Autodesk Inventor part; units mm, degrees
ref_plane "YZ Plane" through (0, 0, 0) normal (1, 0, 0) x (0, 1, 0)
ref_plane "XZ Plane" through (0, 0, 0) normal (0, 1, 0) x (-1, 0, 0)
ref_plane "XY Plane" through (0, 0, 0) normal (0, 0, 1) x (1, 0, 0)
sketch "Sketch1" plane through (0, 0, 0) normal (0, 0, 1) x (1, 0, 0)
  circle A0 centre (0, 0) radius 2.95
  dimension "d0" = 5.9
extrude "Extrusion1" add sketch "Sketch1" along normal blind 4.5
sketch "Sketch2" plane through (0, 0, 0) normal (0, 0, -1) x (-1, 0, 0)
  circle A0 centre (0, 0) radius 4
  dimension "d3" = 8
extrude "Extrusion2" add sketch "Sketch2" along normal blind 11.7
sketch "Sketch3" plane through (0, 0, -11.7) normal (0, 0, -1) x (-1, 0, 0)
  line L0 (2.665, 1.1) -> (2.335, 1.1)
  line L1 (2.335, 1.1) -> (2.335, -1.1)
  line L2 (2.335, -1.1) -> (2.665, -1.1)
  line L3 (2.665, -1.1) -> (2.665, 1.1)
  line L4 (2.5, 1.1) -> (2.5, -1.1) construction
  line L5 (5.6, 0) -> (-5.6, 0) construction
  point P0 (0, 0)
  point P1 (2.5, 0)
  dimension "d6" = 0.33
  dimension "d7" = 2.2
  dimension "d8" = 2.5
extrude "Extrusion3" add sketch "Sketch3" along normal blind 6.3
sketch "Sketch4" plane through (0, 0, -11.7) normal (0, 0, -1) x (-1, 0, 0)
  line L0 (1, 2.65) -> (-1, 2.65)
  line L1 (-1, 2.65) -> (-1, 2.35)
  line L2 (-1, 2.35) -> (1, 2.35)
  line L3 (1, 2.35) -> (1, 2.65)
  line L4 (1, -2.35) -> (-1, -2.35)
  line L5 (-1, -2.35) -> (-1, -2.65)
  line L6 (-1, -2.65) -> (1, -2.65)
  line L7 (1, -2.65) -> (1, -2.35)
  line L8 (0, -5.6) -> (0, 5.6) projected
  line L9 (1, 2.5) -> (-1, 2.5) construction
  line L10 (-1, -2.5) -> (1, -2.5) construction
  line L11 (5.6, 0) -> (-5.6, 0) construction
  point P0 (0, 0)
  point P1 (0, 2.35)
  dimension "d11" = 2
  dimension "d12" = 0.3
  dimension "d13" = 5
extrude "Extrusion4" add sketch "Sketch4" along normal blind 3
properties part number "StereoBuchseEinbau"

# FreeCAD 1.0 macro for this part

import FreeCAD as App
import Part
import Sketcher
Q = App.Units.Quantity

doc = App.newDocument("Part")
params = doc.addObject("Spreadsheet::Sheet", "Params")
for row, (alias, value) in enumerate([
    ("sketch1_diameter", "5.9 mm"),
    ("pad1_length", "4.5 mm"),
    ("sketch2_diameter", "8 mm"),
    ("pad2_length", "11.7 mm"),
    ("sketch3_height", "2.2 mm"),
    ("sketch3_width", "0.33 mm"),
    ("pad3_length", "6.3 mm"),
    ("sketch4_width", "2 mm"),
    ("sketch4_height", "0.3 mm"),
    ("pad4_length", "3 mm"),
], start=1):
    params.set(f"A{row}", alias)
    params.set(f"B{row}", "=" + value)
    params.setAlias(f"B{row}", alias)

body = doc.addObject("PartDesign::Body", "Body")

sketch1 = body.newObject("Sketcher::SketchObject", "Sketch")
sketch1.AttachmentSupport = (doc.getObject("XY_Plane"), [""])
sketch1.MapMode = "FlatFace"
sketch1.addGeometry(Part.Circle(App.Vector(0, 0, 0), App.Vector(0, 0, 1), 2.95), False)
sketch1.addConstraint([
    Sketcher.Constraint("Coincident", 0, 3, -1, 1),
    Sketcher.Constraint("Diameter", 0, Q("5.9 mm")),
])
sketch1.setExpression("Constraints[1]", "Params.sketch1_diameter")
pad1 = body.newObject("PartDesign::Pad", "Pad")
pad1.Profile = sketch1
pad1.setExpression("Length", "Params.pad1_length")

sketch2 = body.newObject("Sketcher::SketchObject", "Sketch001")
sketch2.AttachmentSupport = (doc.getObject("XY_Plane"), [""])
sketch2.MapMode = "FlatFace"
sketch2.addGeometry(Part.Circle(App.Vector(0, 0, 0), App.Vector(0, 0, 1), 4), False)
sketch2.addConstraint([
    Sketcher.Constraint("Coincident", 0, 3, -1, 1),
    Sketcher.Constraint("Diameter", 0, Q("8 mm")),
])
sketch2.setExpression("Constraints[1]", "Params.sketch2_diameter")
pad2 = body.newObject("PartDesign::Pad", "Pad001")
pad2.Profile = sketch2
pad2.setExpression("Length", "Params.pad2_length")
pad2.Reversed = True

sketch3 = body.newObject("Sketcher::SketchObject", "Sketch002")
sketch3.AttachmentSupport = (doc.getObject("XY_Plane"), [""])
sketch3.MapMode = "FlatFace"
sketch3.AttachmentOffset = App.Placement(App.Vector(0, 0, -11.7), App.Rotation())
sketch3.addGeometry([
    Part.LineSegment(App.Vector(-2.665, -1.1, 0), App.Vector(-2.665, 1.1, 0)),
    Part.LineSegment(App.Vector(-2.665, 1.1, 0), App.Vector(-2.335, 1.1, 0)),
    Part.LineSegment(App.Vector(-2.335, 1.1, 0), App.Vector(-2.335, -1.1, 0)),
    Part.LineSegment(App.Vector(-2.335, -1.1, 0), App.Vector(-2.665, -1.1, 0)),
], False)
sketch3.addConstraint([
    Sketcher.Constraint("Coincident", 0, 2, 1, 1),
    Sketcher.Constraint("Coincident", 1, 2, 2, 1),
    Sketcher.Constraint("Coincident", 2, 2, 3, 1),
    Sketcher.Constraint("Coincident", 3, 2, 0, 1),
    Sketcher.Constraint("Vertical", 0),
    Sketcher.Constraint("Horizontal", 1),
    Sketcher.Constraint("Vertical", 2),
    Sketcher.Constraint("Horizontal", 3),
    Sketcher.Constraint("DistanceY", 0, 1, 0, 2, Q("2.2 mm")),
    Sketcher.Constraint("DistanceX", 1, 1, 1, 2, Q("0.33 mm")),
    Sketcher.Constraint("DistanceY", -1, 1, 0, 2, Q("1.1 mm")),
    Sketcher.Constraint("DistanceX", 0, 2, -1, 1, Q("2.665 mm")),
])
sketch3.setExpression("Constraints[8]", "Params.sketch3_height")
sketch3.setExpression("Constraints[9]", "Params.sketch3_width")
pad3 = body.newObject("PartDesign::Pad", "Pad002")
pad3.Profile = sketch3
pad3.setExpression("Length", "Params.pad3_length")
pad3.Reversed = True

sketch4 = body.newObject("Sketcher::SketchObject", "Sketch003")
sketch4.AttachmentSupport = (doc.getObject("XY_Plane"), [""])
sketch4.MapMode = "FlatFace"
sketch4.AttachmentOffset = App.Placement(App.Vector(0, 0, -11.7), App.Rotation())
sketch4.addGeometry([
    Part.LineSegment(App.Vector(-1, 2.35, 0), App.Vector(-1, 2.65, 0)),
    Part.LineSegment(App.Vector(-1, 2.65, 0), App.Vector(1, 2.65, 0)),
    Part.LineSegment(App.Vector(1, 2.65, 0), App.Vector(1, 2.35, 0)),
    Part.LineSegment(App.Vector(1, 2.35, 0), App.Vector(-1, 2.35, 0)),
    Part.LineSegment(App.Vector(-1, -2.35, 0), App.Vector(1, -2.35, 0)),
    Part.LineSegment(App.Vector(1, -2.35, 0), App.Vector(1, -2.65, 0)),
    Part.LineSegment(App.Vector(1, -2.65, 0), App.Vector(-1, -2.65, 0)),
    Part.LineSegment(App.Vector(-1, -2.65, 0), App.Vector(-1, -2.35, 0)),
], False)
sketch4.addConstraint([
    Sketcher.Constraint("Coincident", 0, 2, 1, 1),
    Sketcher.Constraint("Coincident", 1, 2, 2, 1),
    Sketcher.Constraint("Coincident", 2, 2, 3, 1),
    Sketcher.Constraint("Coincident", 3, 2, 0, 1),
    Sketcher.Constraint("Coincident", 4, 2, 5, 1),
    Sketcher.Constraint("Coincident", 5, 2, 6, 1),
    Sketcher.Constraint("Coincident", 6, 2, 7, 1),
    Sketcher.Constraint("Coincident", 7, 2, 4, 1),
    Sketcher.Constraint("Vertical", 0),
    Sketcher.Constraint("Horizontal", 1),
    Sketcher.Constraint("Vertical", 2),
    Sketcher.Constraint("Horizontal", 3),
    Sketcher.Constraint("Horizontal", 4),
    Sketcher.Constraint("Vertical", 5),
    Sketcher.Constraint("Horizontal", 6),
    Sketcher.Constraint("Vertical", 7),
    Sketcher.Constraint("Symmetric", 3, 2, 4, 2, -1, 1),
    Sketcher.Constraint("Symmetric", 1, 2, 6, 2, -1, 1),
    Sketcher.Constraint("Vertical", 2, 2, 4, 2),
    Sketcher.Constraint("DistanceX", 1, 1, 1, 2, Q("2 mm")),
    Sketcher.Constraint("DistanceY", 0, 1, 0, 2, Q("0.3 mm")),
    Sketcher.Constraint("DistanceY", 4, 2, 1, 2, Q("5 mm")),
])
sketch4.setExpression("Constraints[19]", "Params.sketch4_width")
sketch4.setExpression("Constraints[20]", "Params.sketch4_height")
pad4 = body.newObject("PartDesign::Pad", "Pad003")
pad4.Profile = sketch4
pad4.setExpression("Length", "Params.pad4_length")
pad4.Reversed = True

doc.recompute()
